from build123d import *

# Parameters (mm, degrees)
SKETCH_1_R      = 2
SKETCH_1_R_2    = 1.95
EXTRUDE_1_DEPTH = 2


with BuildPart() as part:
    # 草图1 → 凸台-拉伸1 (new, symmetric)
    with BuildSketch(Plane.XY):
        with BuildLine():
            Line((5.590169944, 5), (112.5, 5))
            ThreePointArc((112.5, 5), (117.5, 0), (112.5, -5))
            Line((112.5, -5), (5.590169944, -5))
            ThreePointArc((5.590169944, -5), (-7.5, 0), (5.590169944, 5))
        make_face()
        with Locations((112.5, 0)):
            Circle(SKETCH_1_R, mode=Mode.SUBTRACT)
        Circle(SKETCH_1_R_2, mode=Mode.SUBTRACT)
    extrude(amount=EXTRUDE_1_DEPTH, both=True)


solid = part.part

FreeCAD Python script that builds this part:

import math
import FreeCAD as App
import Part
import Sketcher
from FreeCAD import Vector

doc = App.newDocument("Part")
body = doc.addObject("PartDesign::Body", "Body")

sketch1 = doc.addObject("Sketcher::SketchObject", "Sketch")
body.addObject(sketch1)
sketch1.AttachmentSupport = (doc.XY_Plane, [""])
sketch1.MapMode = "FlatFace"
sketch1.addGeometry(Part.LineSegment(Vector(112.5, 5, 0), Vector(5.6, 5, 0)), False)
sketch1.addGeometry(Part.ArcOfCircle(Part.Circle(Vector(0, 0, 0), Vector(0, 0, 1), 7.5), math.radians(42), math.radians(318)), False)
sketch1.addGeometry(Part.LineSegment(Vector(5.6, -5, 0), Vector(112.5, -5, 0)), False)
sketch1.addGeometry(Part.ArcOfCircle(Part.Circle(Vector(112.5, 0, 0), Vector(0, 0, 1), 5), math.radians(-90), math.radians(90)), False)
sketch1.addGeometry(Part.Circle(Vector(112.5, 0, 0), Vector(0, 0, 1), 2), False)
sketch1.addGeometry(Part.Circle(Vector(0, 0, 0), Vector(0, 0, 1), 1.9), False)
sketch1.addConstraint(Sketcher.Constraint("Coincident", 0, 2, 1, 1))
sketch1.addConstraint(Sketcher.Constraint("Coincident", 1, 2, 2, 1))
sketch1.addConstraint(Sketcher.Constraint("Tangent", 2, 2, 3, 1))
sketch1.addConstraint(Sketcher.Constraint("Tangent", 3, 2, 0, 1))
sketch1.addConstraint(Sketcher.Constraint("Horizontal", 0))
sketch1.addConstraint(Sketcher.Constraint("Horizontal", 2))
sketch1.addConstraint(Sketcher.Constraint("Coincident", 1, 3, -1, 1))
sketch1.addConstraint(Sketcher.Constraint("Coincident", 5, 3, -1, 1))
sketch1.addConstraint(Sketcher.Constraint("Coincident", 4, 3, 3, 3))
sketch1.addConstraint(Sketcher.Constraint("PointOnObject", 3, 3, -1))
sketch1.addConstraint(Sketcher.Constraint("Diameter", 4, 4.0))
sketch1.addConstraint(Sketcher.Constraint("Radius", 3, 5.0))
sketch1.addConstraint(Sketcher.Constraint("Diameter", 5, 3.9))
sketch1.addConstraint(Sketcher.Constraint("Radius", 1, 7.5))
sketch1.addConstraint(Sketcher.Constraint("DistanceX", -1, 1, 3, 3, 112.5))
pad1 = doc.addObject("PartDesign::Pad", "Pad")
body.addObject(pad1)
pad1.Profile = sketch1
pad1.Length = 4
pad1.Midplane = True

doc.recompute()
